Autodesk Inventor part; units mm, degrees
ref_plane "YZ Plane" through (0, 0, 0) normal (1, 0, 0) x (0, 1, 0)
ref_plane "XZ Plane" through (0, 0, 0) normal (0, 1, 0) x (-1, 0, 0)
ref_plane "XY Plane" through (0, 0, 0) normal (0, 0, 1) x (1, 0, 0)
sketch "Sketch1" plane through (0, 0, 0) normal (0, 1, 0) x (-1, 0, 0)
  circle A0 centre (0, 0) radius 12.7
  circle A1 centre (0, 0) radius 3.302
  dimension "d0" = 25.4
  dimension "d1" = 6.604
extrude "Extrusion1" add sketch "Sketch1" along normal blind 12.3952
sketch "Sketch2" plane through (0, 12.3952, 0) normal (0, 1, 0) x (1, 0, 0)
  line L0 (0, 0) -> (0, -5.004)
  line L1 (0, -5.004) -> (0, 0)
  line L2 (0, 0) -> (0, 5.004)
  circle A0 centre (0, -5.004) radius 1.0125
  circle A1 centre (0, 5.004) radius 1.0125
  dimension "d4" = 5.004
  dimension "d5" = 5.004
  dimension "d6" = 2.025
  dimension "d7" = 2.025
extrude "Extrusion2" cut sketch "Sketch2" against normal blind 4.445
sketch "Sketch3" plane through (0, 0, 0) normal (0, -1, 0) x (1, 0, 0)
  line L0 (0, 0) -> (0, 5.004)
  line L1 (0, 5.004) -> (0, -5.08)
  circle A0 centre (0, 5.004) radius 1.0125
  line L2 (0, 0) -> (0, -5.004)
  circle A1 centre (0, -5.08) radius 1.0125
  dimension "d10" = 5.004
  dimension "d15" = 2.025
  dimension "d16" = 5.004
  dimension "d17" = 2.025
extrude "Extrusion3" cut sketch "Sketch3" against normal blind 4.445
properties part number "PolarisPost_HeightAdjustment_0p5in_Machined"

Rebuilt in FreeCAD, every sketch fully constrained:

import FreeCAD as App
import Part
import Sketcher
Q = App.Units.Quantity

doc = App.newDocument("Part")
body = doc.addObject("PartDesign::Body", "Body")

sketch1 = body.newObject("Sketcher::SketchObject", "Sketch")
sketch1.AttachmentSupport = (doc.getObject("XZ_Plane"), [""])
sketch1.MapMode = "FlatFace"
sketch1.addGeometry([
    Part.Circle(App.Vector(0, 0, 0), App.Vector(0, 0, 1), 12.7),
    Part.Circle(App.Vector(0, 0, 0), App.Vector(0, 0, 1), 3.3),
], False)
sketch1.addConstraint([
    Sketcher.Constraint("Coincident", 0, 3, -1, 1),
    Sketcher.Constraint("Coincident", 1, 3, -1, 1),
    Sketcher.Constraint("Diameter", 0, Q("1 in")),
    Sketcher.Constraint("Diameter", 1, Q("0.26 in")),
])
pad1 = body.newObject("PartDesign::Pad", "Pad")
pad1.Profile = sketch1
pad1.Length = Q("0.488 in")
pad1.Reversed = True

sketch2 = body.newObject("Sketcher::SketchObject", "Sketch001")
sketch2.AttachmentSupport = (doc.getObject("XZ_Plane"), [""])
sketch2.MapMode = "FlatFace"
sketch2.AttachmentOffset = App.Placement(App.Vector(0, 0, -0.488 * 25.4), App.Rotation())
sketch2.addGeometry([
    Part.Circle(App.Vector(0, 5, 0), App.Vector(0, 0, 1), 1),
    Part.Circle(App.Vector(0, -5, 0), App.Vector(0, 0, 1), 1),
], False)
sketch2.addConstraint([
    Sketcher.Constraint("Equal", 0, 1),
    Sketcher.Constraint("Symmetric", 0, 3, 1, 3, -1, 1),
    Sketcher.Constraint("PointOnObject", 0, 3, -2),
    Sketcher.Constraint("Diameter", 0, 2.025),
    Sketcher.Constraint("DistanceY", -1, 1, 0, 3, Q("0.197 in")),
])
pocket1 = body.newObject("PartDesign::Pocket", "Pocket")
pocket1.Profile = sketch2
pocket1.Length = Q("0.175 in")
pocket1.Reversed = True

sketch3 = body.newObject("Sketcher::SketchObject", "Sketch002")
sketch3.AttachmentSupport = (doc.getObject("XZ_Plane"), [""])
sketch3.MapMode = "FlatFace"
sketch3.addGeometry([
    Part.Circle(App.Vector(0, 5, 0), App.Vector(0, 0, 1), 1),
    Part.Circle(App.Vector(0, -5.1, 0), App.Vector(0, 0, 1), 1),
], False)
sketch3.addConstraint([
    Sketcher.Constraint("Equal", 0, 1),
    Sketcher.Constraint("PointOnObject", 0, 3, -2),
    Sketcher.Constraint("PointOnObject", 1, 3, -2),
    Sketcher.Constraint("Diameter", 0, 2.025),
    Sketcher.Constraint("DistanceY", -1, 1, 0, 3, Q("0.197 in")),
    Sketcher.Constraint("DistanceY", 1, 3, -1, 1, Q("0.2 in")),
])
pocket2 = body.newObject("PartDesign::Pocket", "Pocket001")
pocket2.Profile = sketch3
pocket2.Length = Q("0.175 in")

doc.recompute()
